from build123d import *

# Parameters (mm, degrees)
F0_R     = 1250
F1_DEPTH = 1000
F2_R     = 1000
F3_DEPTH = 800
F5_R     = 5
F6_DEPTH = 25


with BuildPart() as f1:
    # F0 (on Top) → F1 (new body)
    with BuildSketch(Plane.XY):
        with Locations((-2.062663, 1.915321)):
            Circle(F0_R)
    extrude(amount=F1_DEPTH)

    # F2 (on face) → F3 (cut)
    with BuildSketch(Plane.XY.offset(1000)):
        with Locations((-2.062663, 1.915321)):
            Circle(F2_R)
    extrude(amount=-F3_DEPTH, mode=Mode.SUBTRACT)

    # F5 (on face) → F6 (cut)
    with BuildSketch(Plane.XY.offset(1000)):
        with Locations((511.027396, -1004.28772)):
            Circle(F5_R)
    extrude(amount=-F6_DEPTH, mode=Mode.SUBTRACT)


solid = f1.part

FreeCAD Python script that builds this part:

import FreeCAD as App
import Part
import Sketcher
Q = App.Units.Quantity

doc = App.newDocument("Part")
body = doc.addObject("PartDesign::Body", "Body")

# Sketch on XY plane
sketch1 = body.newObject("Sketcher::SketchObject", "Sketch")
sketch1.AttachmentSupport = (doc.getObject("XY_Plane"), [""])
sketch1.MapMode = "FlatFace"
sketch1.addGeometry(Part.Circle(App.Vector(-2, 2, 0), App.Vector(0, 0, 1), 1250), False)
sketch1.addConstraint([
    Sketcher.Constraint("Diameter", 0, Q("2500 mm")),
    Sketcher.Constraint("DistanceY", -1, 1, 0, 3, Q("1.915321 mm")),
    Sketcher.Constraint("DistanceX", 0, 3, -1, 1, Q("2.062663 mm")),
])
pad1 = body.newObject("PartDesign::Pad", "Pad")
pad1.Profile = sketch1
pad1.Length = 1000

# Sketch on XY plane
sketch2 = body.newObject("Sketcher::SketchObject", "Sketch001")
sketch2.AttachmentSupport = (doc.getObject("XY_Plane"), [""])
sketch2.MapMode = "FlatFace"
sketch2.AttachmentOffset = App.Placement(App.Vector(0, 0, 1000), App.Rotation())
sketch2.addGeometry(Part.Circle(App.Vector(-2, 2, 0), App.Vector(0, 0, 1), 1000), False)
sketch2.addConstraint([
    Sketcher.Constraint("Diameter", 0, Q("2000 mm")),
    Sketcher.Constraint("DistanceY", -1, 1, 0, 3, Q("1.915321 mm")),
    Sketcher.Constraint("DistanceX", 0, 3, -1, 1, Q("2.062663 mm")),
])
pocket1 = body.newObject("PartDesign::Pocket", "Pocket")
pocket1.Profile = sketch2
pocket1.Length = 800

# Sketch on XY plane
sketch3 = body.newObject("Sketcher::SketchObject", "Sketch002")
sketch3.AttachmentSupport = (doc.getObject("XY_Plane"), [""])
sketch3.MapMode = "FlatFace"
sketch3.AttachmentOffset = App.Placement(App.Vector(0, 0, 1000), App.Rotation())
sketch3.addGeometry(Part.Circle(App.Vector(511, -1004, 0), App.Vector(0, 0, 1), 5), False)
sketch3.addConstraint([
    Sketcher.Constraint("Diameter", 0, Q("10 mm")),
    Sketcher.Constraint("DistanceY", 0, 3, -1, 1, Q("1004.28772 mm")),
    Sketcher.Constraint("DistanceX", -1, 1, 0, 3, Q("511.027396 mm")),
])
pocket2 = body.newObject("PartDesign::Pocket", "Pocket001")
pocket2.Profile = sketch3
pocket2.Length = 25

doc.recompute()
